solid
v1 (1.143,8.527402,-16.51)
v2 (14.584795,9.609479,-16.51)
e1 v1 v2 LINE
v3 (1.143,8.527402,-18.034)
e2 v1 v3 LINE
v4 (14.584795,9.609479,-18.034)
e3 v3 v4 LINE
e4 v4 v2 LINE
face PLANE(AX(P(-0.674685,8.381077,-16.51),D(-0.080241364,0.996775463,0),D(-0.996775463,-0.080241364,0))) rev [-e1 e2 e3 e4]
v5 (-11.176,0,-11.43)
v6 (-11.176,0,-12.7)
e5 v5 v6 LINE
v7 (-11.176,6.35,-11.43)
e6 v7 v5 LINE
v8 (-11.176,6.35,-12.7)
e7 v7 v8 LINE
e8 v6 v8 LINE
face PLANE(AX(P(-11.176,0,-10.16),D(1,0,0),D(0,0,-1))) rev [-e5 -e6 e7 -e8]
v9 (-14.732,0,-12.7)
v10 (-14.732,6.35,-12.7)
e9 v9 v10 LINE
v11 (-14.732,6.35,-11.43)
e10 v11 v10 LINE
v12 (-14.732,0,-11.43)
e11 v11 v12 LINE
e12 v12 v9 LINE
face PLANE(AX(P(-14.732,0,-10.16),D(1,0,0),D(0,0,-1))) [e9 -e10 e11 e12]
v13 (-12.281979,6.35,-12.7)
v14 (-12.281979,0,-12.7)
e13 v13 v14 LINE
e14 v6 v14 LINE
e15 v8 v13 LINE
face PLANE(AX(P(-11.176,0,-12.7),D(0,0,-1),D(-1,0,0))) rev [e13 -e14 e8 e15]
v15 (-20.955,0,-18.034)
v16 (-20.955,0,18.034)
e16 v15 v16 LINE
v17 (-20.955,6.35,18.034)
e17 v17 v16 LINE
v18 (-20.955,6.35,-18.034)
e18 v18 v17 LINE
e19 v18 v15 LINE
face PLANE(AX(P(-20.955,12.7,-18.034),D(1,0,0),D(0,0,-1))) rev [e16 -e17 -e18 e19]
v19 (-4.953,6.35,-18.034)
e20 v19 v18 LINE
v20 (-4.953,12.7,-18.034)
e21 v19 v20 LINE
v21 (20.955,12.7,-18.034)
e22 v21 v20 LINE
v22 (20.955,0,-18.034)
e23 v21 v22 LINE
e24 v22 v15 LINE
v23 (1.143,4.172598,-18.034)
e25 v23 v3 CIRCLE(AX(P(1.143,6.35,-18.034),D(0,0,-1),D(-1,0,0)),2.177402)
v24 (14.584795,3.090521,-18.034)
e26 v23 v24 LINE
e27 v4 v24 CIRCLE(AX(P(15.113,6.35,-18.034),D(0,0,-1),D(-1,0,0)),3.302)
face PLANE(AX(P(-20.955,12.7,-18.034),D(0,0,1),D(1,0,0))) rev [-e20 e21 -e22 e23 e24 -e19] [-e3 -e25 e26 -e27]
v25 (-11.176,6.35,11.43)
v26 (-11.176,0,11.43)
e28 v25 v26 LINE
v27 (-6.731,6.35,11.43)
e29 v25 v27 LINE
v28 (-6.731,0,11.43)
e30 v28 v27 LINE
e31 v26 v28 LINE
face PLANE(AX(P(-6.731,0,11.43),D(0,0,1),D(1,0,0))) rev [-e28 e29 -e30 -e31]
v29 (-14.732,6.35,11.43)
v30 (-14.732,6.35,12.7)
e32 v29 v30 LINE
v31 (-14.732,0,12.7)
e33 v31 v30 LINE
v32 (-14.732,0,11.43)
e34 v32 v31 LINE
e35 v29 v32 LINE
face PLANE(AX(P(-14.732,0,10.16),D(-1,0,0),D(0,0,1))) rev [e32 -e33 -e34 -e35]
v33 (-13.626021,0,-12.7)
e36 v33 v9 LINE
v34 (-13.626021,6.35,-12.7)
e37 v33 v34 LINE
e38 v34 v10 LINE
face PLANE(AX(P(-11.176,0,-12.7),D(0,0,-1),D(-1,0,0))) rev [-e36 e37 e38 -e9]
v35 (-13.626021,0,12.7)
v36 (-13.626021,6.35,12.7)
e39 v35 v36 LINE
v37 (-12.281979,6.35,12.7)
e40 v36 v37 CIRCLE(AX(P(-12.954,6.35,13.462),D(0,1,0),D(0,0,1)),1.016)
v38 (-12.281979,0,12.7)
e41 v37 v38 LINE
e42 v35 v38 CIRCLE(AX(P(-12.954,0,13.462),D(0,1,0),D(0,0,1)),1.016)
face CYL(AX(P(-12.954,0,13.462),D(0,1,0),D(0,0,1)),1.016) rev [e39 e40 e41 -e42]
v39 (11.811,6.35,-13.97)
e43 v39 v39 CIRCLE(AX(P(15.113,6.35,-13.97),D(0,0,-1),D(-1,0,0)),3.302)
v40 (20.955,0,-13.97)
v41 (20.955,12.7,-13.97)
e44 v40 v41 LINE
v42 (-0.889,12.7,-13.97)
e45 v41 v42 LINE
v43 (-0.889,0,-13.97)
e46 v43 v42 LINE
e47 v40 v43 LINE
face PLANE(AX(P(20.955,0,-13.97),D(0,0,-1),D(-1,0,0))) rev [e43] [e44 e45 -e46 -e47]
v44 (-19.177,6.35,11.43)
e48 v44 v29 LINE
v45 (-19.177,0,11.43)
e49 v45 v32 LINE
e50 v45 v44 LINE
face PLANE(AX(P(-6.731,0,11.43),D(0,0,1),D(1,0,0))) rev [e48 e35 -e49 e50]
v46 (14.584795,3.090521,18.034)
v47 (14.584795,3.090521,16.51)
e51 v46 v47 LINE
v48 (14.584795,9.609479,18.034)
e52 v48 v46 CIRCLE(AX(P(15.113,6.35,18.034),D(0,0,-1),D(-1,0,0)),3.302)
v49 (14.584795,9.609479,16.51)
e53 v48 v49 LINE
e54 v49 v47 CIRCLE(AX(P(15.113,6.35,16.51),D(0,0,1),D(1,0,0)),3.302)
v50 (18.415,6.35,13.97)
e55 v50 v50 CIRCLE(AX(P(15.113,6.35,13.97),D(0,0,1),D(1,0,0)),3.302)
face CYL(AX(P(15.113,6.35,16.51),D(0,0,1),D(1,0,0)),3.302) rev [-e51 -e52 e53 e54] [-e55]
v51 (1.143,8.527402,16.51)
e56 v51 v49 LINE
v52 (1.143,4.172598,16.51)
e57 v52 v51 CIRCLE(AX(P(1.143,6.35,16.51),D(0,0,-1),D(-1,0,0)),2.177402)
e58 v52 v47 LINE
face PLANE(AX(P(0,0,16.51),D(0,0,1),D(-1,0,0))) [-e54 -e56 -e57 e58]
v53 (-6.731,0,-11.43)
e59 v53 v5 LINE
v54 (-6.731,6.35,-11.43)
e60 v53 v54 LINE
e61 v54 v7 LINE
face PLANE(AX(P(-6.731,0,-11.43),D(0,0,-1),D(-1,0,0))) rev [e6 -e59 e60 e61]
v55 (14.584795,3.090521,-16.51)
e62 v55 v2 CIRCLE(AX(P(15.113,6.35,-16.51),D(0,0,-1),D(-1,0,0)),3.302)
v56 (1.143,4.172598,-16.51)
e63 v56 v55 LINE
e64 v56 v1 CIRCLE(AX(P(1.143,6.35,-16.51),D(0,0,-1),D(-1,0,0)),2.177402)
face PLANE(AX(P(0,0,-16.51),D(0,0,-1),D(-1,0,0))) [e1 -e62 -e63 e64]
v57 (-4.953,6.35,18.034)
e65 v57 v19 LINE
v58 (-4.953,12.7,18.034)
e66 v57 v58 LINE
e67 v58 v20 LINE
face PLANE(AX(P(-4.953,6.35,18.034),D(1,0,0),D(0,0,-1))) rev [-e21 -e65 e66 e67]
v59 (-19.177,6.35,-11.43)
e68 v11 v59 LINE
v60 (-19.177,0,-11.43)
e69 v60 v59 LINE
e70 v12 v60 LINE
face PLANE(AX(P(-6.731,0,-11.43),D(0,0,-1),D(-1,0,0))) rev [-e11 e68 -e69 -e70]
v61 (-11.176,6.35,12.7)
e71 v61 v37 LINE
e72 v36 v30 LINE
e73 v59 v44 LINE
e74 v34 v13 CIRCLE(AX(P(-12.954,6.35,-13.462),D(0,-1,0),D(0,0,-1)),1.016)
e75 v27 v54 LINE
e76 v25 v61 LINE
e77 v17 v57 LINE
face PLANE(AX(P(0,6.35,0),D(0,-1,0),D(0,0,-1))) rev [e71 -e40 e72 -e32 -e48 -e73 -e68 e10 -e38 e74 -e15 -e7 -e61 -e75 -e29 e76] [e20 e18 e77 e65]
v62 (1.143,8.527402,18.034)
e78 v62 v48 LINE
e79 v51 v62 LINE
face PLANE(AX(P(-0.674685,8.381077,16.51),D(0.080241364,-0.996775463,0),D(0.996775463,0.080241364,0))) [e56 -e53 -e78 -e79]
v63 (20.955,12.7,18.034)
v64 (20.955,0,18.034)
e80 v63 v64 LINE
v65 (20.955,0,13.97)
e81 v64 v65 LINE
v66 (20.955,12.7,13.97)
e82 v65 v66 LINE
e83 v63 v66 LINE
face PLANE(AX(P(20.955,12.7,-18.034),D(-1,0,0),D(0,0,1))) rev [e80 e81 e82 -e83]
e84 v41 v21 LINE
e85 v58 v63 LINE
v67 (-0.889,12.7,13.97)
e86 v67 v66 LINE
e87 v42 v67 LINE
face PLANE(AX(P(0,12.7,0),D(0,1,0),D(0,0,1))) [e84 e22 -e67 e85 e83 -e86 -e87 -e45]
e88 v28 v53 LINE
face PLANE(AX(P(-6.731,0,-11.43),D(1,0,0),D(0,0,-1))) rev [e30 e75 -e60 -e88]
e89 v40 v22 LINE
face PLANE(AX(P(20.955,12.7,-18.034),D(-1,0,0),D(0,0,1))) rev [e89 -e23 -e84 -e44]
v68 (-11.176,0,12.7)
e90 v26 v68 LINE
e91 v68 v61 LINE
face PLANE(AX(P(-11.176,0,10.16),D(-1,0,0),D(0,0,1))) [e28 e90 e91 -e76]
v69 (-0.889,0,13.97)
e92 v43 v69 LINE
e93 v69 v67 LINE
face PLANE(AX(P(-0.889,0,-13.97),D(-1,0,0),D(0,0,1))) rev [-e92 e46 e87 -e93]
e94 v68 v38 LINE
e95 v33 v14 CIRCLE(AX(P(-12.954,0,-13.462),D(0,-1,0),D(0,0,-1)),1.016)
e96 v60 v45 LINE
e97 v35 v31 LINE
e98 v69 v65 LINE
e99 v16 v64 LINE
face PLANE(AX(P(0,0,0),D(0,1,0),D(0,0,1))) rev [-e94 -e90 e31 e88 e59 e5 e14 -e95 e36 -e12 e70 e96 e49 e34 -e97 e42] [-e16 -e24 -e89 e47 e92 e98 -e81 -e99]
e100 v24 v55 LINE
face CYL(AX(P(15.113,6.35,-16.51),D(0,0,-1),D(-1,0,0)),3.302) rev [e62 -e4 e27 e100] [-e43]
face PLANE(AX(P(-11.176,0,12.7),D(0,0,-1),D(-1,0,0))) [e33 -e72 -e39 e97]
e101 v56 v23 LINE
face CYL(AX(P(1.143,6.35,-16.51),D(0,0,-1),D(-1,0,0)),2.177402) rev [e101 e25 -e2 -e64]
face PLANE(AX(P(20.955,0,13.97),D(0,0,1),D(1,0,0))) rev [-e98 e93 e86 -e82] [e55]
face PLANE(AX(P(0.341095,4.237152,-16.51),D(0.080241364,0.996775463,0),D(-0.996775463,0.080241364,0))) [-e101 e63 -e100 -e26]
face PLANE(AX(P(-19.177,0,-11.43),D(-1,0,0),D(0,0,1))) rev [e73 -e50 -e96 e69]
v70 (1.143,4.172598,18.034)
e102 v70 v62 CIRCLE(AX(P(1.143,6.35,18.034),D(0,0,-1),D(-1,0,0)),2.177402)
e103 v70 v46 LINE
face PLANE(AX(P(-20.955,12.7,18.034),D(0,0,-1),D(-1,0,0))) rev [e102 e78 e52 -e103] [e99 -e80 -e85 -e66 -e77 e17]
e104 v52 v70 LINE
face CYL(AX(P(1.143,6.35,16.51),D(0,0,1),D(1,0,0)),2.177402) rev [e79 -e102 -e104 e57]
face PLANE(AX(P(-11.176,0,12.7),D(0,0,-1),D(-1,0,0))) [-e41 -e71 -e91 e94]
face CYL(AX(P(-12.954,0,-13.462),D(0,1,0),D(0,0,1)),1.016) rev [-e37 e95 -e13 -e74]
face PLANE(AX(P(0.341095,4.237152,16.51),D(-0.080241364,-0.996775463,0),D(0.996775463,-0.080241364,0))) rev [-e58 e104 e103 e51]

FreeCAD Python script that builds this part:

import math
import FreeCAD as App
import Part
import Sketcher
Q = App.Units.Quantity


def add_polygon(sketch, points):
    """Adds a closed chain of lines whose ends are joined by coincident constraints."""
    first, n = sketch.GeometryCount, len(points)
    for a, b in zip(points, points[1:] + points[:1]):
        sketch.addGeometry(Part.LineSegment(App.Vector(*a, 0), App.Vector(*b, 0)), False)
    for i in range(n):
        sketch.addConstraint(Sketcher.Constraint("Coincident", first + i, 2, first + (i + 1) % n, 1))

doc = App.newDocument("Part")
params = doc.addObject("Spreadsheet::Sheet", "Params")
for row, (alias, value) in enumerate([
    ("sketch1_width", "1.65 in"),
    ("sketch1_height", "1.42 in"),
    ("pad1_length", "0.5 in"),
    ("sketch2_height", "1.1 in"),
    ("sketch2_width", "0.86 in"),
    ("sketch3_width", "0.63 in"),
    ("sketch3_height", "1.42 in"),
    ("pocket2_length", "0.25 in"),
    ("sketch4_height", "0.9 in"),
    ("sketch4_width", "0.49 in"),
    ("sketch5_radius", "0.04 in"),
    ("sketch5_height", "0.1 in"),
    ("sketch5_width", "0.14 in"),
    ("pocket4_length", "0.25 in"),
    ("sketch6_radius", "0.13 in"),
    ("pocket5_length", "0.06 in"),
    ("sketch7_diameter", "0.26 in"),
], start=1):
    params.set(f"A{row}", alias)
    params.set(f"B{row}", "=" + value)
    params.setAlias(f"B{row}", alias)

body = doc.addObject("PartDesign::Body", "Body")

# Sketch on XZ plane
sketch1 = body.newObject("Sketcher::SketchObject", "Sketch")
sketch1.AttachmentSupport = (doc.getObject("XZ_Plane"), [""])
sketch1.MapMode = "FlatFace"
add_polygon(sketch1, [(-20.955, -18.034), (-20.955, 18.034), (20.955, 18.034), (20.955, -18.034)])  # lines 0-3
sketch1.addConstraint([
    Sketcher.Constraint("Vertical", 0),
    Sketcher.Constraint("Horizontal", 1),
    Sketcher.Constraint("Vertical", 2),
    Sketcher.Constraint("Horizontal", 3),
    Sketcher.Constraint("Symmetric", 0, 2, 2, 2, -1, 1),
    Sketcher.Constraint("DistanceX", 1, 1, 1, 2, Q("1.65 in")),
    Sketcher.Constraint("DistanceY", 0, 1, 0, 2, Q("1.42 in")),
])
sketch1.setExpression("Constraints[9]", "Params.sketch1_width")
sketch1.setExpression("Constraints[10]", "Params.sketch1_height")
pad1 = body.newObject("PartDesign::Pad", "Pad")
pad1.Profile = sketch1
pad1.setExpression("Length", "Params.pad1_length")
pad1.Reversed = True

# Sketch on XZ plane
sketch2 = body.newObject("Sketcher::SketchObject", "Sketch001")
sketch2.AttachmentSupport = (doc.getObject("XZ_Plane"), [""])
sketch2.MapMode = "FlatFace"
sketch2.AttachmentOffset = App.Placement(App.Vector(0, 0, -0.5 * 25.4), App.Rotation())
add_polygon(sketch2, [(-0.889, -13.97), (-0.889, 13.97), (20.955, 13.97), (20.955, -13.97)])  # lines 0-3
sketch2.addConstraint([
    Sketcher.Constraint("Vertical", 0),
    Sketcher.Constraint("Horizontal", 1),
    Sketcher.Constraint("Vertical", 2),
    Sketcher.Constraint("Horizontal", 3),
    Sketcher.Constraint("DistanceY", 0, 1, 0, 2, Q("1.1 in")),
    Sketcher.Constraint("DistanceX", 1, 1, 1, 2, Q("0.86 in")),
    Sketcher.Constraint("DistanceY", -1, 1, 0, 2, Q("0.55 in")),
    Sketcher.Constraint("DistanceX", 0, 2, -1, 1, Q("0.035 in")),
])
sketch2.setExpression("Constraints[8]", "Params.sketch2_height")
sketch2.setExpression("Constraints[9]", "Params.sketch2_width")
pocket1 = body.newObject("PartDesign::Pocket", "Pocket")
pocket1.Profile = sketch2
pocket1.Type = "ThroughAll"
pocket1.Reversed = True

# Sketch on XZ plane
sketch3 = body.newObject("Sketcher::SketchObject", "Sketch002")
sketch3.AttachmentSupport = (doc.getObject("XZ_Plane"), [""])
sketch3.MapMode = "FlatFace"
sketch3.AttachmentOffset = App.Placement(App.Vector(0, 0, -0.5 * 25.4), App.Rotation())
add_polygon(sketch3, [(-20.955, -18.034), (-20.955, 18.034), (-4.953, 18.034), (-4.953, -18.034)])  # lines 0-3
sketch3.addConstraint([
    Sketcher.Constraint("Vertical", 0),
    Sketcher.Constraint("Horizontal", 1),
    Sketcher.Constraint("Vertical", 2),
    Sketcher.Constraint("Horizontal", 3),
    Sketcher.Constraint("DistanceX", 1, 1, 1, 2, Q("0.63 in")),
    Sketcher.Constraint("DistanceY", 0, 1, 0, 2, Q("1.42 in")),
    Sketcher.Constraint("DistanceY", -1, 1, 0, 2, Q("0.71 in")),
    Sketcher.Constraint("DistanceX", 0, 2, -1, 1, Q("0.825 in")),
])
sketch3.setExpression("Constraints[8]", "Params.sketch3_width")
sketch3.setExpression("Constraints[9]", "Params.sketch3_height")
pocket2 = body.newObject("PartDesign::Pocket", "Pocket001")
pocket2.Profile = sketch3
pocket2.setExpression("Length", "Params.pocket2_length")
pocket2.Reversed = True

# Sketch on XZ plane
sketch4 = body.newObject("Sketcher::SketchObject", "Sketch003")
sketch4.AttachmentSupport = (doc.getObject("XZ_Plane"), [""])
sketch4.MapMode = "FlatFace"
sketch4.AttachmentOffset = App.Placement(App.Vector(0, 0, -0.25 * 25.4), App.Rotation())
add_polygon(sketch4, [(-19.177, -11.43), (-19.177, 11.43), (-6.731, 11.43), (-6.731, -11.43)])  # lines 0-3
sketch4.addConstraint([
    Sketcher.Constraint("Vertical", 0),
    Sketcher.Constraint("Horizontal", 1),
    Sketcher.Constraint("Vertical", 2),
    Sketcher.Constraint("Horizontal", 3),
    Sketcher.Constraint("DistanceY", 0, 1, 0, 2, Q("0.9 in")),
    Sketcher.Constraint("DistanceX", 1, 1, 1, 2, Q("0.49 in")),
    Sketcher.Constraint("DistanceY", -1, 1, 0, 2, Q("0.45 in")),
    Sketcher.Constraint("DistanceX", 0, 2, -1, 1, Q("0.755 in")),
])
sketch4.setExpression("Constraints[8]", "Params.sketch4_height")
sketch4.setExpression("Constraints[9]", "Params.sketch4_width")
pocket3 = body.newObject("PartDesign::Pocket", "Pocket002")
pocket3.Profile = sketch4
pocket3.Type = "ThroughAll"
pocket3.Reversed = True

# Sketch on XZ plane
sketch5 = body.newObject("Sketcher::SketchObject", "Sketch004")
sketch5.AttachmentSupport = (doc.getObject("XZ_Plane"), [""])
sketch5.MapMode = "FlatFace"
sketch5.AttachmentOffset = App.Placement(App.Vector(0, 0, -0.25 * 25.4), App.Rotation())
sketch5.addGeometry([
    Part.ArcOfCircle(Part.Circle(App.Vector(-12.954, 13.462, 0), App.Vector(0, 0, 1), 1.016), math.radians(-48.590378), math.radians(228.590378)),  # 0
    Part.LineSegment(App.Vector(-12.281979, 12.7, 0), App.Vector(-11.176, 12.7, 0)),  # 1
    Part.LineSegment(App.Vector(-11.176, 12.7, 0), App.Vector(-11.176, 10.16, 0)),  # 2
    Part.LineSegment(App.Vector(-11.176, 10.16, 0), App.Vector(-14.732, 10.16, 0)),  # 3
    Part.LineSegment(App.Vector(-14.732, 10.16, 0), App.Vector(-14.732, 12.7, 0)),  # 4
    Part.LineSegment(App.Vector(-14.732, 12.7, 0), App.Vector(-13.626021, 12.7, 0)),  # 5
    Part.ArcOfCircle(Part.Circle(App.Vector(-12.954, -13.462, 0), App.Vector(0, 0, 1), 1.016), math.radians(131.409622), math.radians(408.590378)),  # 6
    Part.LineSegment(App.Vector(-13.626021, -12.7, 0), App.Vector(-14.732, -12.7, 0)),  # 7
    Part.LineSegment(App.Vector(-14.732, -12.7, 0), App.Vector(-14.732, -10.16, 0)),  # 8
    Part.LineSegment(App.Vector(-14.732, -10.16, 0), App.Vector(-11.176, -10.16, 0)),  # 9
    Part.LineSegment(App.Vector(-11.176, -10.16, 0), App.Vector(-11.176, -12.7, 0)),  # 10
    Part.LineSegment(App.Vector(-11.176, -12.7, 0), App.Vector(-12.281979, -12.7, 0)),  # 11
], False)
sketch5.addConstraint([
    Sketcher.Constraint("Coincident", 0, 1, 1, 1),
    Sketcher.Constraint("Coincident", 1, 2, 2, 1),
    Sketcher.Constraint("Coincident", 2, 2, 3, 1),
    Sketcher.Constraint("Coincident", 3, 2, 4, 1),
    Sketcher.Constraint("Coincident", 4, 2, 5, 1),
    Sketcher.Constraint("Coincident", 5, 2, 0, 2),
    Sketcher.Constraint("Coincident", 6, 1, 7, 1),
    Sketcher.Constraint("Coincident", 7, 2, 8, 1),
    Sketcher.Constraint("Coincident", 8, 2, 9, 1),
    Sketcher.Constraint("Coincident", 9, 2, 10, 1),
    Sketcher.Constraint("Coincident", 10, 2, 11, 1),
    Sketcher.Constraint("Coincident", 11, 2, 6, 2),
    Sketcher.Constraint("Horizontal", 1),
    Sketcher.Constraint("Vertical", 2),
    Sketcher.Constraint("Horizontal", 3),
    Sketcher.Constraint("Vertical", 4),
    Sketcher.Constraint("Horizontal", 5),
    Sketcher.Constraint("Horizontal", 7),
    Sketcher.Constraint("Vertical", 8),
    Sketcher.Constraint("Horizontal", 9),
    Sketcher.Constraint("Vertical", 10),
    Sketcher.Constraint("Horizontal", 11),
    Sketcher.Constraint("Equal", 0, 6),
    Sketcher.Constraint("Symmetric", 0, 3, 6, 3, -1),
    Sketcher.Constraint("Symmetric", 4, 2, 7, 2, -1),
    Sketcher.Constraint("Symmetric", 2, 2, 9, 2, -1),
    Sketcher.Constraint("Horizontal", 1, 2, 4, 2),
    Sketcher.Constraint("Horizontal", 7, 2, 10, 2),
    Sketcher.Constraint("Equal", 1, 5),
    Sketcher.Constraint("Radius", 0, Q("0.04 in")),
    Sketcher.Constraint("DistanceY", 2, 2, 2, 1, Q("0.1 in")),
    Sketcher.Constraint("DistanceY", 6, 1, 5, 2, Q("1 in")),
    Sketcher.Constraint("DistanceX", 3, 2, 3, 1, Q("0.14 in")),
    Sketcher.Constraint("DistanceX", 0, 3, -1, 1, Q("0.51 in")),
    Sketcher.Constraint("DistanceY", -1, 1, 0, 3, Q("0.53 in")),
])
sketch5.setExpression("Constraints[29]", "Params.sketch5_radius")
sketch5.setExpression("Constraints[30]", "Params.sketch5_height")
sketch5.setExpression("Constraints[32]", "Params.sketch5_width")
pocket4 = body.newObject("PartDesign::Pocket", "Pocket003")
pocket4.Profile = sketch5
pocket4.setExpression("Length", "Params.pocket4_length")
pocket4.Reversed = True

# Sketch on XY plane
sketch6 = body.newObject("Sketcher::SketchObject", "Sketch005")
sketch6.AttachmentSupport = (doc.getObject("XY_Plane"), [""])
sketch6.MapMode = "FlatFace"
sketch6.AttachmentOffset = App.Placement(App.Vector(0, 0, -0.71 * 25.4), App.Rotation())
sketch6.addGeometry([
    Part.ArcOfCircle(Part.Circle(App.Vector(1.143, 6.35, 0), App.Vector(0, 0, 1), 2.177402), math.radians(90), math.radians(270)),
    Part.LineSegment(App.Vector(1.143, 8.527402, 0), App.Vector(15.113, 9.652, 0)),
    Part.ArcOfCircle(Part.Circle(App.Vector(15.113, 6.35, 0), App.Vector(0, 0, 1), 3.302), math.radians(-90), math.radians(90)),
    Part.LineSegment(App.Vector(15.113, 3.048, 0), App.Vector(1.143, 4.172598, 0)),
], False)
sketch6.addConstraint([
    Sketcher.Constraint("Coincident", 0, 1, 1, 1),
    Sketcher.Constraint("Coincident", 1, 2, 2, 2),
    Sketcher.Constraint("Coincident", 2, 1, 3, 1),
    Sketcher.Constraint("Coincident", 3, 2, 0, 2),
    Sketcher.Constraint("Horizontal", 0, 3, 2, 3),
    Sketcher.Constraint("Vertical", 2, 3, 1, 2),
    Sketcher.Constraint("Vertical", 1, 2, 2, 1),
    Sketcher.Constraint("Vertical", 0, 1, 3, 2),
    Sketcher.Constraint("Radius", 2, Q("0.13 in")),
    Sketcher.Constraint("DistanceY", -1, 1, 0, 3, Q("0.25 in")),
    Sketcher.Constraint("Radius", 0, 2.177402),
    Sketcher.Constraint("DistanceX", 0, 3, 2, 3, Q("0.55 in")),
    Sketcher.Constraint("DistanceX", 0, 1, 2, 3, Q("0.55 in")),
    Sketcher.Constraint("DistanceX", -1, 1, 0, 3, Q("0.045 in")),
])
sketch6.setExpression("Constraints[8]", "Params.sketch6_radius")
pocket5 = body.newObject("PartDesign::Pocket", "Pocket004")
pocket5.Profile = sketch6
pocket5.setExpression("Length", "Params.pocket5_length")
pocket5.Reversed = True
doc.recompute()

mirrored = body.newObject("PartDesign::Mirrored", "Mirrored")
mirrored.Originals = [pocket5]
mirrored.MirrorPlane = (doc.getObject("XY_Plane"), [""])
body.Tip = mirrored

# Sketch on XY plane
sketch7 = body.newObject("Sketcher::SketchObject", "Sketch006")
sketch7.AttachmentSupport = (doc.getObject("XY_Plane"), [""])
sketch7.MapMode = "FlatFace"
sketch7.AttachmentOffset = App.Placement(App.Vector(0, 0, -0.71 * 25.4), App.Rotation())
sketch7.addGeometry(Part.Circle(App.Vector(15.113, 6.35, 0), App.Vector(0, 0, 1), 3.302), False)
sketch7.addConstraint([
    Sketcher.Constraint("Diameter", 0, Q("0.26 in")),
    Sketcher.Constraint("DistanceY", -1, 1, 0, 3, Q("0.25 in")),
    Sketcher.Constraint("DistanceX", -1, 1, 0, 3, Q("0.595 in")),
])
sketch7.setExpression("Constraints[0]", "Params.sketch7_diameter")
pocket6 = body.newObject("PartDesign::Pocket", "Pocket005")
pocket6.Profile = sketch7
pocket6.Type = "ThroughAll"
pocket6.Reversed = True

doc.recompute()
